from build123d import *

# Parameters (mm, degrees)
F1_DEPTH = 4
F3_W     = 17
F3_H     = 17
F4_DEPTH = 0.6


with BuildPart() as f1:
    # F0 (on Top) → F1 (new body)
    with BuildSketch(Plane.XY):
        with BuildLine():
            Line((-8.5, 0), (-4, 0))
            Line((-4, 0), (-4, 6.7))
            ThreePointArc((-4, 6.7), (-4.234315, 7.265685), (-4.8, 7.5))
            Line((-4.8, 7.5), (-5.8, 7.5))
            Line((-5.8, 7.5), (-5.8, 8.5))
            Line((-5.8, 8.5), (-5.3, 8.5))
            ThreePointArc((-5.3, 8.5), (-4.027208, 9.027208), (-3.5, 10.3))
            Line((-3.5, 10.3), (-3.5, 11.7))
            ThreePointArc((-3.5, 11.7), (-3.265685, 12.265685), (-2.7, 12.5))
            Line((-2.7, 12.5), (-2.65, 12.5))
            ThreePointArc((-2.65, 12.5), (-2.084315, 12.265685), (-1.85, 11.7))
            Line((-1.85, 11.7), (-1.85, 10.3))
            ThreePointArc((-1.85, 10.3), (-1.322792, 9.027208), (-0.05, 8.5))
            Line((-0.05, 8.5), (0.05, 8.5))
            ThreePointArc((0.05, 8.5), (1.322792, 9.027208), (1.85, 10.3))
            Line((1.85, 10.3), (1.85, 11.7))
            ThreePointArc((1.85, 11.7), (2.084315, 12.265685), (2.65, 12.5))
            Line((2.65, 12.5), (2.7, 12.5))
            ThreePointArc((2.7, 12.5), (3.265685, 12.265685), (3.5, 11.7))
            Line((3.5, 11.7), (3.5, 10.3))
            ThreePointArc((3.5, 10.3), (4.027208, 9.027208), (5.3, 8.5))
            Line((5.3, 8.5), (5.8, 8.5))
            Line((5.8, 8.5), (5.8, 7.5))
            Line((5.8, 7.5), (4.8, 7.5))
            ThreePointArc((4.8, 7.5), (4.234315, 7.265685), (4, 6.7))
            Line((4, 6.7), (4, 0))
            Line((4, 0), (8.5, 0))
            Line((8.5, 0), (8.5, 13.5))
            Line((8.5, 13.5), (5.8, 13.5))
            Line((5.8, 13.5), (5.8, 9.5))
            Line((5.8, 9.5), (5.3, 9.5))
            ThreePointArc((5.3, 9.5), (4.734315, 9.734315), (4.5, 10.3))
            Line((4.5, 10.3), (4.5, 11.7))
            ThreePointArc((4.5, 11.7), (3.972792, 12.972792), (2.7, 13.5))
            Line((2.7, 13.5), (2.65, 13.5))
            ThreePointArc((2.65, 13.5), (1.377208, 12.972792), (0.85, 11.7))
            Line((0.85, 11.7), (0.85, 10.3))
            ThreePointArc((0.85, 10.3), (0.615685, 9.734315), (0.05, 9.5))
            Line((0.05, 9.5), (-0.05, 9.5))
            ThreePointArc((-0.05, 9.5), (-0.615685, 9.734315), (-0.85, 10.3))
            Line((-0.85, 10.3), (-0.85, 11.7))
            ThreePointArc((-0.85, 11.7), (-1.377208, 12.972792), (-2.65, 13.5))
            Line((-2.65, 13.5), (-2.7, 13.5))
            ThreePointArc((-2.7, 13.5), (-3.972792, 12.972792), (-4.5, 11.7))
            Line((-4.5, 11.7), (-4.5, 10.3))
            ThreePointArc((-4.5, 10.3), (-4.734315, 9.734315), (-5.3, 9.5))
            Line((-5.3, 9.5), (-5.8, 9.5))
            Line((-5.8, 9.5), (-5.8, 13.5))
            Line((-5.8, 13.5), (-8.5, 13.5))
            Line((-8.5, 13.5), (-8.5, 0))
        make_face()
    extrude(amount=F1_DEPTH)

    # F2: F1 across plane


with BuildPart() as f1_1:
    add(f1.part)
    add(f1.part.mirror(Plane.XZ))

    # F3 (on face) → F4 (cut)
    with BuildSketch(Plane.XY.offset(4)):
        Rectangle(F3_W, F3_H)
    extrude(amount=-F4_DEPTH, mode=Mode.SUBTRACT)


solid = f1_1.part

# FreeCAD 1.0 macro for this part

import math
import FreeCAD as App
import Part
import Sketcher

doc = App.newDocument("Part")
body = doc.addObject("PartDesign::Body", "Body")

# Sketch on XY plane
sketch1 = body.newObject("Sketcher::SketchObject", "Sketch")
sketch1.AttachmentSupport = (doc.getObject("XY_Plane"), [""])
sketch1.MapMode = "FlatFace"
sketch1.addGeometry([
    Part.LineSegment(App.Vector(-8.5, 0, 0), App.Vector(-4, 0, 0)),  # 0
    Part.LineSegment(App.Vector(-4, 0, 0), App.Vector(-4, 6.7, 0)),  # 1
    Part.ArcOfCircle(Part.Circle(App.Vector(-4.8, 6.7, 0), App.Vector(0, 0, 1), 0.8), math.radians(0), math.radians(90)),  # 2
    Part.LineSegment(App.Vector(-4.8, 7.5, 0), App.Vector(-5.8, 7.5, 0)),  # 3
    Part.LineSegment(App.Vector(-5.8, 7.5, 0), App.Vector(-5.8, 8.5, 0)),  # 4
    Part.LineSegment(App.Vector(-5.8, 8.5, 0), App.Vector(-5.3, 8.5, 0)),  # 5
    Part.ArcOfCircle(Part.Circle(App.Vector(-5.3, 10.3, 0), App.Vector(0, 0, 1), 1.8), math.radians(-90), math.radians(0)),  # 6
    Part.LineSegment(App.Vector(-3.5, 10.3, 0), App.Vector(-3.5, 11.7, 0)),  # 7
    Part.ArcOfCircle(Part.Circle(App.Vector(-2.7, 11.7, 0), App.Vector(0, 0, 1), 0.8), math.radians(90), math.radians(180)),  # 8
    Part.LineSegment(App.Vector(-2.7, 12.5, 0), App.Vector(-2.65, 12.5, 0)),  # 9
    Part.ArcOfCircle(Part.Circle(App.Vector(-2.65, 11.7, 0), App.Vector(0, 0, 1), 0.8), math.radians(0), math.radians(90)),  # 10
    Part.LineSegment(App.Vector(-1.85, 11.7, 0), App.Vector(-1.85, 10.3, 0)),  # 11
    Part.ArcOfCircle(Part.Circle(App.Vector(-0.05, 10.3, 0), App.Vector(0, 0, 1), 1.8), math.radians(-180), math.radians(-90)),  # 12
    Part.LineSegment(App.Vector(-0.05, 8.5, 0), App.Vector(0.05, 8.5, 0)),  # 13
    Part.ArcOfCircle(Part.Circle(App.Vector(0.05, 10.3, 0), App.Vector(0, 0, 1), 1.8), math.radians(-90), math.radians(0)),  # 14
    Part.LineSegment(App.Vector(1.85, 10.3, 0), App.Vector(1.85, 11.7, 0)),  # 15
    Part.ArcOfCircle(Part.Circle(App.Vector(2.65, 11.7, 0), App.Vector(0, 0, 1), 0.8), math.radians(90), math.radians(180)),  # 16
    Part.LineSegment(App.Vector(2.65, 12.5, 0), App.Vector(2.7, 12.5, 0)),  # 17
    Part.ArcOfCircle(Part.Circle(App.Vector(2.7, 11.7, 0), App.Vector(0, 0, 1), 0.8), math.radians(0), math.radians(90)),  # 18
    Part.LineSegment(App.Vector(3.5, 11.7, 0), App.Vector(3.5, 10.3, 0)),  # 19
    Part.ArcOfCircle(Part.Circle(App.Vector(5.3, 10.3, 0), App.Vector(0, 0, 1), 1.8), math.radians(-180), math.radians(-90)),  # 20
    Part.LineSegment(App.Vector(5.3, 8.5, 0), App.Vector(5.8, 8.5, 0)),  # 21
    Part.LineSegment(App.Vector(5.8, 8.5, 0), App.Vector(5.8, 7.5, 0)),  # 22
    Part.LineSegment(App.Vector(5.8, 7.5, 0), App.Vector(4.8, 7.5, 0)),  # 23
    Part.ArcOfCircle(Part.Circle(App.Vector(4.8, 6.7, 0), App.Vector(0, 0, 1), 0.8), math.radians(90), math.radians(180)),  # 24
    Part.LineSegment(App.Vector(4, 6.7, 0), App.Vector(4, 0, 0)),  # 25
    Part.LineSegment(App.Vector(4, 0, 0), App.Vector(8.5, 0, 0)),  # 26
    Part.LineSegment(App.Vector(8.5, 0, 0), App.Vector(8.5, 13.5, 0)),  # 27
    Part.LineSegment(App.Vector(8.5, 13.5, 0), App.Vector(5.8, 13.5, 0)),  # 28
    Part.LineSegment(App.Vector(5.8, 13.5, 0), App.Vector(5.8, 9.5, 0)),  # 29
    Part.LineSegment(App.Vector(5.8, 9.5, 0), App.Vector(5.3, 9.5, 0)),  # 30
    Part.ArcOfCircle(Part.Circle(App.Vector(5.3, 10.3, 0), App.Vector(0, 0, 1), 0.8), math.radians(-180), math.radians(-90)),  # 31
    Part.LineSegment(App.Vector(4.5, 10.3, 0), App.Vector(4.5, 11.7, 0)),  # 32
    Part.ArcOfCircle(Part.Circle(App.Vector(2.7, 11.7, 0), App.Vector(0, 0, 1), 1.8), math.radians(0), math.radians(90)),  # 33
    Part.LineSegment(App.Vector(2.7, 13.5, 0), App.Vector(2.65, 13.5, 0)),  # 34
    Part.ArcOfCircle(Part.Circle(App.Vector(2.65, 11.7, 0), App.Vector(0, 0, 1), 1.8), math.radians(90), math.radians(180)),  # 35
    Part.LineSegment(App.Vector(0.85, 11.7, 0), App.Vector(0.85, 10.3, 0)),  # 36
    Part.ArcOfCircle(Part.Circle(App.Vector(0.05, 10.3, 0), App.Vector(0, 0, 1), 0.8), math.radians(-90), math.radians(0)),  # 37
    Part.LineSegment(App.Vector(0.05, 9.5, 0), App.Vector(-0.05, 9.5, 0)),  # 38
    Part.ArcOfCircle(Part.Circle(App.Vector(-0.05, 10.3, 0), App.Vector(0, 0, 1), 0.8), math.radians(-180), math.radians(-90)),  # 39
    Part.LineSegment(App.Vector(-0.85, 10.3, 0), App.Vector(-0.85, 11.7, 0)),  # 40
    Part.ArcOfCircle(Part.Circle(App.Vector(-2.65, 11.7, 0), App.Vector(0, 0, 1), 1.8), math.radians(0), math.radians(90)),  # 41
    Part.LineSegment(App.Vector(-2.65, 13.5, 0), App.Vector(-2.7, 13.5, 0)),  # 42
    Part.ArcOfCircle(Part.Circle(App.Vector(-2.7, 11.7, 0), App.Vector(0, 0, 1), 1.8), math.radians(90), math.radians(180)),  # 43
    Part.LineSegment(App.Vector(-4.5, 11.7, 0), App.Vector(-4.5, 10.3, 0)),  # 44
    Part.ArcOfCircle(Part.Circle(App.Vector(-5.3, 10.3, 0), App.Vector(0, 0, 1), 0.8), math.radians(-90), math.radians(0)),  # 45
    Part.LineSegment(App.Vector(-5.3, 9.5, 0), App.Vector(-5.8, 9.5, 0)),  # 46
    Part.LineSegment(App.Vector(-5.8, 9.5, 0), App.Vector(-5.8, 13.5, 0)),  # 47
    Part.LineSegment(App.Vector(-5.8, 13.5, 0), App.Vector(-8.5, 13.5, 0)),  # 48
    Part.LineSegment(App.Vector(-8.5, 13.5, 0), App.Vector(-8.5, 0, 0)),  # 49
], False)
sketch1.addConstraint([
    Sketcher.Constraint("Coincident", 0, 2, 1, 1),
    Sketcher.Constraint("Tangent", 1, 2, 2, 1),
    Sketcher.Constraint("Tangent", 2, 2, 3, 1),
    Sketcher.Constraint("Coincident", 3, 2, 4, 1),
    Sketcher.Constraint("Coincident", 4, 2, 5, 1),
    Sketcher.Constraint("Tangent", 5, 2, 6, 1),
    Sketcher.Constraint("Tangent", 6, 2, 7, 1),
    Sketcher.Constraint("Tangent", 7, 2, 8, 2),
    Sketcher.Constraint("Tangent", 8, 1, 9, 1),
    Sketcher.Constraint("Tangent", 9, 2, 10, 2),
    Sketcher.Constraint("Tangent", 10, 1, 11, 1),
    Sketcher.Constraint("Tangent", 11, 2, 12, 1),
    Sketcher.Constraint("Tangent", 12, 2, 13, 1),
    Sketcher.Constraint("Tangent", 13, 2, 14, 1),
    Sketcher.Constraint("Tangent", 14, 2, 15, 1),
    Sketcher.Constraint("Tangent", 15, 2, 16, 2),
    Sketcher.Constraint("Tangent", 16, 1, 17, 1),
    Sketcher.Constraint("Tangent", 17, 2, 18, 2),
    Sketcher.Constraint("Tangent", 18, 1, 19, 1),
    Sketcher.Constraint("Tangent", 19, 2, 20, 1),
    Sketcher.Constraint("Tangent", 20, 2, 21, 1),
    Sketcher.Constraint("Coincident", 21, 2, 22, 1),
    Sketcher.Constraint("Coincident", 22, 2, 23, 1),
    Sketcher.Constraint("Tangent", 23, 2, 24, 1),
    Sketcher.Constraint("Tangent", 24, 2, 25, 1),
    Sketcher.Constraint("Coincident", 25, 2, 26, 1),
    Sketcher.Constraint("Coincident", 26, 2, 27, 1),
    Sketcher.Constraint("Coincident", 27, 2, 28, 1),
    Sketcher.Constraint("Coincident", 28, 2, 29, 1),
    Sketcher.Constraint("Coincident", 29, 2, 30, 1),
    Sketcher.Constraint("Tangent", 30, 2, 31, 2),
    Sketcher.Constraint("Tangent", 31, 1, 32, 1),
    Sketcher.Constraint("Tangent", 32, 2, 33, 1),
    Sketcher.Constraint("Tangent", 33, 2, 34, 1),
    Sketcher.Constraint("Tangent", 34, 2, 35, 1),
    Sketcher.Constraint("Tangent", 35, 2, 36, 1),
    Sketcher.Constraint("Tangent", 36, 2, 37, 2),
    Sketcher.Constraint("Tangent", 37, 1, 38, 1),
    Sketcher.Constraint("Tangent", 38, 2, 39, 2),
    Sketcher.Constraint("Tangent", 39, 1, 40, 1),
    Sketcher.Constraint("Tangent", 40, 2, 41, 1),
    Sketcher.Constraint("Tangent", 41, 2, 42, 1),
    Sketcher.Constraint("Tangent", 42, 2, 43, 1),
    Sketcher.Constraint("Tangent", 43, 2, 44, 1),
    Sketcher.Constraint("Tangent", 44, 2, 45, 2),
    Sketcher.Constraint("Tangent", 45, 1, 46, 1),
    Sketcher.Constraint("Coincident", 46, 2, 47, 1),
    Sketcher.Constraint("Coincident", 47, 2, 48, 1),
    Sketcher.Constraint("Coincident", 48, 2, 49, 1),
    Sketcher.Constraint("Coincident", 49, 2, 0, 1),
    Sketcher.Constraint("Horizontal", 0),
    Sketcher.Constraint("Vertical", 1),
    Sketcher.Constraint("Horizontal", 3),
    Sketcher.Constraint("Vertical", 4),
    Sketcher.Constraint("Horizontal", 5),
    Sketcher.Constraint("Vertical", 7),
    Sketcher.Constraint("Horizontal", 9),
    Sketcher.Constraint("Vertical", 11),
    Sketcher.Constraint("Horizontal", 13),
    Sketcher.Constraint("Vertical", 15),
    Sketcher.Constraint("Horizontal", 17),
    Sketcher.Constraint("Vertical", 19),
    Sketcher.Constraint("Horizontal", 21),
    Sketcher.Constraint("Vertical", 22),
    Sketcher.Constraint("Horizontal", 23),
    Sketcher.Constraint("Vertical", 25),
    Sketcher.Constraint("Horizontal", 26),
    Sketcher.Constraint("Vertical", 27),
    Sketcher.Constraint("Horizontal", 28),
    Sketcher.Constraint("Vertical", 29),
    Sketcher.Constraint("Horizontal", 30),
    Sketcher.Constraint("Vertical", 32),
    Sketcher.Constraint("Horizontal", 34),
    Sketcher.Constraint("Vertical", 36),
    Sketcher.Constraint("Horizontal", 38),
    Sketcher.Constraint("Vertical", 40),
    Sketcher.Constraint("Horizontal", 42),
    Sketcher.Constraint("Vertical", 44),
    Sketcher.Constraint("Horizontal", 46),
    Sketcher.Constraint("Vertical", 47),
    Sketcher.Constraint("Horizontal", 48),
    Sketcher.Constraint("Vertical", 49),
    Sketcher.Constraint("Coincident", 31, 3, 20, 3),
    Sketcher.Constraint("Coincident", 33, 3, 18, 3),
    Sketcher.Constraint("Coincident", 35, 3, 16, 3),
    Sketcher.Constraint("Coincident", 37, 3, 14, 3),
    Sketcher.Constraint("Coincident", 39, 3, 12, 3),
    Sketcher.Constraint("Coincident", 41, 3, 10, 3),
    Sketcher.Constraint("Coincident", 43, 3, 8, 3),
    Sketcher.Constraint("Coincident", 45, 3, 6, 3),
    Sketcher.Constraint("Equal", 2, 8),
    Sketcher.Constraint("Equal", 8, 10),
    Sketcher.Constraint("Equal", 6, 12),
    Sketcher.Constraint("Equal", 12, 14),
    Sketcher.Constraint("Equal", 10, 16),
    Sketcher.Constraint("Equal", 16, 18),
    Sketcher.Constraint("Equal", 14, 20),
    Sketcher.Constraint("Equal", 18, 24),
    Sketcher.Constraint("Equal", 24, 31),
    Sketcher.Constraint("Symmetric", 0, 2, 25, 2, -1, 1),
    Sketcher.Constraint("Symmetric", 10, 3, 16, 3, -2),
    Sketcher.Constraint("Symmetric", 6, 3, 20, 3, -2),
    Sketcher.Constraint("Symmetric", 3, 2, 22, 2, -2),
    Sketcher.Constraint("Symmetric", 28, 2, 47, 2, -2),
    Sketcher.Constraint("Symmetric", 26, 2, 49, 2, -2),
    Sketcher.Constraint("Horizontal", 6, 3, 12, 3),
    Sketcher.Constraint("Horizontal", 28, 2, 33, 2),
    Sketcher.Constraint("Vertical", 22, 2, 28, 2),
    Sketcher.Constraint("Equal", 23, 4),
    Sketcher.Constraint("Radius", 2, 0.800001),
    Sketcher.Constraint("Radius", 6, 1.800001),
    Sketcher.Constraint("DistanceX", 3, 2, 3, 1, 1.0),
    Sketcher.Constraint("DistanceY", 29, 2, 29, 1, 4.0),
    Sketcher.Constraint("DistanceX", 0, 1, 0, 2, 4.5),
    Sketcher.Constraint("DistanceX", 5, 1, 5, 2, 0.5),
    Sketcher.Constraint("DistanceX", 13, 1, 13, 2, 0.1),
    Sketcher.Constraint("DistanceY", 1, 1, 1, 2, 6.7),
    Sketcher.Constraint("DistanceX", 0, 2, -1, 1, 4.0),
])
pad1 = body.newObject("PartDesign::Pad", "Pad")
pad1.Profile = sketch1
pad1.Length = 4
body2 = doc.addObject("PartDesign::Body", "Body001")
doc.recompute()

body2.BaseFeature = body
doc.recompute()

mirroring = doc.addObject("Part::Mirroring", "Mirroring")
mirroring.Source = body
mirroring.Base = App.Vector(0, 0, 0)
mirroring.Normal = App.Vector(0, -1, 0)
body3 = doc.addObject("PartDesign::Body", "Body002")
body3.BaseFeature = mirroring
boolean = body2.newObject("PartDesign::Boolean", "Boolean")
boolean.Type = "Fuse"
boolean.addObjects([body3])
doc.recompute()

# Sketch on XY plane
sketch2 = body2.newObject("Sketcher::SketchObject", "Sketch001")
sketch2.AttachmentSupport = (doc.getObject("XY_Plane001"), [""])
sketch2.MapMode = "FlatFace"
sketch2.AttachmentOffset = App.Placement(App.Vector(0, 0, 4), App.Rotation())
sketch2.addGeometry([
    Part.LineSegment(App.Vector(-8, 8, 0), App.Vector(-8, -8, 0)),
    Part.LineSegment(App.Vector(-8, -8, 0), App.Vector(8, -8, 0)),
    Part.LineSegment(App.Vector(8, -8, 0), App.Vector(8, 8, 0)),
    Part.LineSegment(App.Vector(8, 8, 0), App.Vector(-8, 8, 0)),
], False)
sketch2.addConstraint([
    Sketcher.Constraint("Coincident", 0, 2, 1, 1),
    Sketcher.Constraint("Coincident", 1, 2, 2, 1),
    Sketcher.Constraint("Coincident", 2, 2, 3, 1),
    Sketcher.Constraint("Coincident", 3, 2, 0, 1),
    Sketcher.Constraint("Vertical", 0),
    Sketcher.Constraint("Horizontal", 1),
    Sketcher.Constraint("Vertical", 2),
    Sketcher.Constraint("Horizontal", 3),
    Sketcher.Constraint("Symmetric", 0, 2, 2, 2, -1, 1),
    Sketcher.Constraint("Equal", 3, 0),
    Sketcher.Constraint("DistanceX", 1, 1, 1, 2, 17.0),
])
pocket1 = body2.newObject("PartDesign::Pocket", "Pocket")
pocket1.Profile = sketch2
pocket1.Length = 0.6
mirroring.Visibility = False

doc.recompute()
